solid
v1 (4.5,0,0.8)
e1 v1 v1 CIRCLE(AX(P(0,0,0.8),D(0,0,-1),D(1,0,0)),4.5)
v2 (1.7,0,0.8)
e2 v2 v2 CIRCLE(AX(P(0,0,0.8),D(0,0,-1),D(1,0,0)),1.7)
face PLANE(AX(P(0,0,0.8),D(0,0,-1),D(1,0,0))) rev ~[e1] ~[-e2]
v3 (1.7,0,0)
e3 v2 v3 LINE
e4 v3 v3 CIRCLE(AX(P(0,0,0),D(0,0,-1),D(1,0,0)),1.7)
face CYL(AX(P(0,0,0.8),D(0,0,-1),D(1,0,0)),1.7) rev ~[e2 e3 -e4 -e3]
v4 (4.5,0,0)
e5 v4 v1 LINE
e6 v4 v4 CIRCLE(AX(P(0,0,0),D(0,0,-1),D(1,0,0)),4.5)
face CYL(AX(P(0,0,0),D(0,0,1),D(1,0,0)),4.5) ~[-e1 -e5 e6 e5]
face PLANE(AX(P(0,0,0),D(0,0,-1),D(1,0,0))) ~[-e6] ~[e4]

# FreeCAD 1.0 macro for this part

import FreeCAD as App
import Part
import Sketcher

doc = App.newDocument("Part")
body = doc.addObject("PartDesign::Body", "Body")

sketch1 = doc.addObject("Sketcher::SketchObject", "Sketch")
body.addObject(sketch1)
sketch1.AttachmentSupport = (doc.XZ_Plane, [""])
sketch1.MapMode = "FlatFace"
sketch1.addGeometry(Part.LineSegment(App.Vector(4.5, 0.8, 0), App.Vector(1.7, 0.8, 0)), False)
sketch1.addGeometry(Part.LineSegment(App.Vector(1.7, 0.8, 0), App.Vector(1.7, 0, 0)), False)
sketch1.addGeometry(Part.LineSegment(App.Vector(1.7, 0, 0), App.Vector(4.5, 0, 0)), False)
sketch1.addGeometry(Part.LineSegment(App.Vector(4.5, 0, 0), App.Vector(4.5, 0.8, 0)), False)
sketch1.addConstraint(Sketcher.Constraint("Coincident", 0, 2, 1, 1))
sketch1.addConstraint(Sketcher.Constraint("Coincident", 1, 2, 2, 1))
sketch1.addConstraint(Sketcher.Constraint("Coincident", 2, 2, 3, 1))
sketch1.addConstraint(Sketcher.Constraint("Coincident", 3, 2, 0, 1))
sketch1.addConstraint(Sketcher.Constraint("Horizontal", 0))
sketch1.addConstraint(Sketcher.Constraint("Vertical", 1))
sketch1.addConstraint(Sketcher.Constraint("Horizontal", 2))
sketch1.addConstraint(Sketcher.Constraint("Vertical", 3))
sketch1.addConstraint(Sketcher.Constraint("PointOnObject", 1, 2, -1))
sketch1.addConstraint(Sketcher.Constraint("DistanceX", -1, 1, 2, 2, 4.5))
sketch1.addConstraint(Sketcher.Constraint("DistanceX", 0, 2, 0, 1, 2.8))
sketch1.addConstraint(Sketcher.Constraint("DistanceY", 1, 2, 1, 1, 0.8))
revolution = doc.addObject("PartDesign::Revolution", "Revolution")
body.addObject(revolution)
revolution.Profile = sketch1
revolution.ReferenceAxis = (sketch1, ["V_Axis"])
revolution.Angle = 360

doc.recompute()
